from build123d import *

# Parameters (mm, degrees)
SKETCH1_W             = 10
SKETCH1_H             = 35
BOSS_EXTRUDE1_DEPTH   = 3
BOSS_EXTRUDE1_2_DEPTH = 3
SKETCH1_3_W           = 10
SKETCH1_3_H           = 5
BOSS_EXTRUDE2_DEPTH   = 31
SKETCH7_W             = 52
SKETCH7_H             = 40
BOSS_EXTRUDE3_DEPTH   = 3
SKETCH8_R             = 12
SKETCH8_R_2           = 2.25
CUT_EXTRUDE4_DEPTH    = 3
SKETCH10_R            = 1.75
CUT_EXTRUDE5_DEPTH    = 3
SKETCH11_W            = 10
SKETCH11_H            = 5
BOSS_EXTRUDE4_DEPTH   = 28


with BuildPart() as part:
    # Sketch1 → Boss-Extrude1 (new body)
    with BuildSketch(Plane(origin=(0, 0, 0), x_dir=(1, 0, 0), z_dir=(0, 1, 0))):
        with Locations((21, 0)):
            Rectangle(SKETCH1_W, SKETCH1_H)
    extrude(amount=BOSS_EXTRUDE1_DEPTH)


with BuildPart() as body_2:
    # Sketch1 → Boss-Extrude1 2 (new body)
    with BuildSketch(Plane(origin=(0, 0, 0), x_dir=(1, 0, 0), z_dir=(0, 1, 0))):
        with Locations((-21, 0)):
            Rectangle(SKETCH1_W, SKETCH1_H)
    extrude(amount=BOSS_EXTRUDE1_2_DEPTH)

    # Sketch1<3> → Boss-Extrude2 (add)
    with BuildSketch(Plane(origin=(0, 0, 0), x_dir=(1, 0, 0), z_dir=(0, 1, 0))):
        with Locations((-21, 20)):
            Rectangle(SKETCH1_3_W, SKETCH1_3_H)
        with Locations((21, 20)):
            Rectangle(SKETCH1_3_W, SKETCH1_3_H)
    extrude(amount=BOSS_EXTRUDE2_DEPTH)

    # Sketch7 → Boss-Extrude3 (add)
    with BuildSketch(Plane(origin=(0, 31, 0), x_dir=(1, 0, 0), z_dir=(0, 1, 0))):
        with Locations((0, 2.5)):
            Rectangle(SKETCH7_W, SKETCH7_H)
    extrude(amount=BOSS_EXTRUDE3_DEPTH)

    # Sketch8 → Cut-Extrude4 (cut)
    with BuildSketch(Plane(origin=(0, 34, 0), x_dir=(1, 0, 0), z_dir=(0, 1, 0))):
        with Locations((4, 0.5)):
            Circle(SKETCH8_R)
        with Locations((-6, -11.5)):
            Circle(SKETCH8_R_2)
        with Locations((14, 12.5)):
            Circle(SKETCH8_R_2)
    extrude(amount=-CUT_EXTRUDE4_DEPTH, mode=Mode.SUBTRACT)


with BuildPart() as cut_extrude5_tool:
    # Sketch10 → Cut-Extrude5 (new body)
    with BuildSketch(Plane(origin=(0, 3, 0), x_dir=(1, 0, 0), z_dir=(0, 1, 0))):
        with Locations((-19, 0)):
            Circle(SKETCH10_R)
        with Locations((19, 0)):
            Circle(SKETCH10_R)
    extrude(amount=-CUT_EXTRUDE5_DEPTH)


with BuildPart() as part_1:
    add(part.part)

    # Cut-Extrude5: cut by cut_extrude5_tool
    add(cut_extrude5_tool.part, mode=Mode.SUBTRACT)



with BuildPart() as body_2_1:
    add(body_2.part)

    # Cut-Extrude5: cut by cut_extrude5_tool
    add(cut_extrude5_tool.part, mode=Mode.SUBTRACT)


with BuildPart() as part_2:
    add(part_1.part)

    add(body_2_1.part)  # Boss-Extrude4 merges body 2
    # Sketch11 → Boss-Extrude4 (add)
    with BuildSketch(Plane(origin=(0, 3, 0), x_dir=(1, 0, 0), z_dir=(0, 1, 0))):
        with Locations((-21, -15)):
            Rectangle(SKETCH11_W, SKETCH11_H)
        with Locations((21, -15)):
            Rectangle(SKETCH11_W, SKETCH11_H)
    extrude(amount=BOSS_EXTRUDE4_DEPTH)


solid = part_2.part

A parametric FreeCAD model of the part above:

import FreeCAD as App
import Part
import Sketcher
Q = App.Units.Quantity

doc = App.newDocument("Part")
params = doc.addObject("Spreadsheet::Sheet", "Params")
for row, (alias, value) in enumerate([
    ("sketch1_width", "10 mm"),
    ("sketch1_height", "35 mm"),
    ("pad1_length", "3 mm"),
    ("sketch2_width", "10 mm"),
    ("sketch2_height", "35 mm"),
    ("pad2_length", "3 mm"),
    ("sketch3_width", "10 mm"),
    ("sketch3_height", "5 mm"),
    ("pad3_length", "31 mm"),
    ("sketch4_width", "52 mm"),
    ("sketch4_height", "40 mm"),
    ("pad4_length", "3 mm"),
    ("sketch5_diameter", "24 mm"),
    ("sketch5_diameter2", "4.5 mm"),
    ("pocket1_length", "3 mm"),
    ("sketch6_diameter", "3.5 mm"),
    ("pad5_length", "3 mm"),
    ("sketch7_width", "10 mm"),
    ("sketch7_height", "5 mm"),
    ("pad6_length", "28 mm"),
], start=1):
    params.set(f"A{row}", alias)
    params.set(f"B{row}", "=" + value)
    params.setAlias(f"B{row}", alias)

body = doc.addObject("PartDesign::Body", "Body")

# Sketch on XZ plane
sketch1 = doc.addObject("Sketcher::SketchObject", "Sketch")
body.addObject(sketch1)
sketch1.AttachmentSupport = (doc.XZ_Plane, [""])
sketch1.MapMode = "FlatFace"
sketch1.addGeometry([
    Part.LineSegment(App.Vector(16, -17.5, 0), App.Vector(16, 17.5, 0)),
    Part.LineSegment(App.Vector(16, 17.5, 0), App.Vector(26, 17.5, 0)),
    Part.LineSegment(App.Vector(26, 17.5, 0), App.Vector(26, -17.5, 0)),
    Part.LineSegment(App.Vector(26, -17.5, 0), App.Vector(16, -17.5, 0)),
], False)
sketch1.addConstraint([
    Sketcher.Constraint("Coincident", 0, 2, 1, 1),
    Sketcher.Constraint("Coincident", 1, 2, 2, 1),
    Sketcher.Constraint("Coincident", 2, 2, 3, 1),
    Sketcher.Constraint("Coincident", 3, 2, 0, 1),
    Sketcher.Constraint("Vertical", 0),
    Sketcher.Constraint("Horizontal", 1),
    Sketcher.Constraint("Vertical", 2),
    Sketcher.Constraint("Horizontal", 3),
    Sketcher.Constraint("DistanceX", 1, 1, 1, 2, Q("10 mm")),
    Sketcher.Constraint("DistanceY", 0, 1, 0, 2, Q("35 mm")),
    Sketcher.Constraint("DistanceX", -1, 1, 0, 2, Q("16 mm")),
    Sketcher.Constraint("DistanceY", -1, 1, 0, 2, Q("17.5 mm")),
])
sketch1.setExpression("Constraints[8]", "Params.sketch1_width")
sketch1.setExpression("Constraints[9]", "Params.sketch1_height")
pad1 = doc.addObject("PartDesign::Pad", "Pad")
body.addObject(pad1)
pad1.Profile = sketch1
pad1.setExpression("Length", "Params.pad1_length")
pad1.Reversed = True
body2 = doc.addObject("PartDesign::Body", "Body001")
body2.AllowCompound = True

# Sketch on XZ plane
sketch2 = doc.addObject("Sketcher::SketchObject", "Sketch001")
body2.addObject(sketch2)
sketch2.AttachmentSupport = (doc.getObject("XZ_Plane001"), [""])
sketch2.MapMode = "FlatFace"
sketch2.addGeometry([
    Part.LineSegment(App.Vector(-26, -17.5, 0), App.Vector(-26, 17.5, 0)),
    Part.LineSegment(App.Vector(-26, 17.5, 0), App.Vector(-16, 17.5, 0)),
    Part.LineSegment(App.Vector(-16, 17.5, 0), App.Vector(-16, -17.5, 0)),
    Part.LineSegment(App.Vector(-16, -17.5, 0), App.Vector(-26, -17.5, 0)),
], False)
sketch2.addConstraint([
    Sketcher.Constraint("Coincident", 0, 2, 1, 1),
    Sketcher.Constraint("Coincident", 1, 2, 2, 1),
    Sketcher.Constraint("Coincident", 2, 2, 3, 1),
    Sketcher.Constraint("Coincident", 3, 2, 0, 1),
    Sketcher.Constraint("Vertical", 0),
    Sketcher.Constraint("Horizontal", 1),
    Sketcher.Constraint("Vertical", 2),
    Sketcher.Constraint("Horizontal", 3),
    Sketcher.Constraint("DistanceX", 1, 1, 1, 2, Q("10 mm")),
    Sketcher.Constraint("DistanceY", 0, 1, 0, 2, Q("35 mm")),
    Sketcher.Constraint("DistanceX", 0, 2, -1, 1, Q("26 mm")),
    Sketcher.Constraint("DistanceY", -1, 1, 0, 2, Q("17.5 mm")),
])
sketch2.setExpression("Constraints[8]", "Params.sketch2_width")
sketch2.setExpression("Constraints[9]", "Params.sketch2_height")
pad2 = doc.addObject("PartDesign::Pad", "Pad001")
body2.addObject(pad2)
pad2.Profile = sketch2
pad2.setExpression("Length", "Params.pad2_length")
pad2.Reversed = True

# Sketch on XZ plane
sketch3 = doc.addObject("Sketcher::SketchObject", "Sketch002")
body2.addObject(sketch3)
sketch3.AttachmentSupport = (doc.getObject("XZ_Plane001"), [""])
sketch3.MapMode = "FlatFace"
sketch3.addGeometry([
    Part.LineSegment(App.Vector(-26, -22.5, 0), App.Vector(-26, -17.5, 0)),  # 0
    Part.LineSegment(App.Vector(-26, -17.5, 0), App.Vector(-16, -17.5, 0)),  # 1
    Part.LineSegment(App.Vector(-16, -17.5, 0), App.Vector(-16, -22.5, 0)),  # 2
    Part.LineSegment(App.Vector(-16, -22.5, 0), App.Vector(-26, -22.5, 0)),  # 3
    Part.LineSegment(App.Vector(16, -22.5, 0), App.Vector(16, -17.5, 0)),  # 4
    Part.LineSegment(App.Vector(16, -17.5, 0), App.Vector(26, -17.5, 0)),  # 5
    Part.LineSegment(App.Vector(26, -17.5, 0), App.Vector(26, -22.5, 0)),  # 6
    Part.LineSegment(App.Vector(26, -22.5, 0), App.Vector(16, -22.5, 0)),  # 7
], False)
sketch3.addConstraint([
    Sketcher.Constraint("Coincident", 0, 2, 1, 1),
    Sketcher.Constraint("Coincident", 1, 2, 2, 1),
    Sketcher.Constraint("Coincident", 2, 2, 3, 1),
    Sketcher.Constraint("Coincident", 3, 2, 0, 1),
    Sketcher.Constraint("Coincident", 4, 2, 5, 1),
    Sketcher.Constraint("Coincident", 5, 2, 6, 1),
    Sketcher.Constraint("Coincident", 6, 2, 7, 1),
    Sketcher.Constraint("Coincident", 7, 2, 4, 1),
    Sketcher.Constraint("Vertical", 0),
    Sketcher.Constraint("Horizontal", 1),
    Sketcher.Constraint("Vertical", 2),
    Sketcher.Constraint("Horizontal", 3),
    Sketcher.Constraint("Vertical", 4),
    Sketcher.Constraint("Horizontal", 5),
    Sketcher.Constraint("Vertical", 6),
    Sketcher.Constraint("Horizontal", 7),
    Sketcher.Constraint("Symmetric", 1, 2, 4, 2, -2),
    Sketcher.Constraint("Symmetric", 3, 2, 6, 2, -2),
    Sketcher.Constraint("DistanceX", 1, 1, 1, 2, Q("10 mm")),
    Sketcher.Constraint("DistanceY", 0, 1, 0, 2, Q("5 mm")),
    Sketcher.Constraint("DistanceX", 0, 2, -1, 1, Q("26 mm")),
    Sketcher.Constraint("DistanceY", 0, 2, -1, 1, Q("17.5 mm")),
])
sketch3.setExpression("Constraints[18]", "Params.sketch3_width")
sketch3.setExpression("Constraints[19]", "Params.sketch3_height")
pad3 = doc.addObject("PartDesign::Pad", "Pad002")
body2.addObject(pad3)
pad3.Profile = sketch3
pad3.setExpression("Length", "Params.pad3_length")
pad3.Reversed = True

# Sketch on XZ plane
sketch4 = doc.addObject("Sketcher::SketchObject", "Sketch003")
body2.addObject(sketch4)
sketch4.AttachmentSupport = (doc.getObject("XZ_Plane001"), [""])
sketch4.MapMode = "FlatFace"
sketch4.AttachmentOffset = App.Placement(App.Vector(0, 0, -31), App.Rotation())
sketch4.addGeometry([
    Part.LineSegment(App.Vector(-26, -22.5, 0), App.Vector(-26, 17.5, 0)),
    Part.LineSegment(App.Vector(-26, 17.5, 0), App.Vector(26, 17.5, 0)),
    Part.LineSegment(App.Vector(26, 17.5, 0), App.Vector(26, -22.5, 0)),
    Part.LineSegment(App.Vector(26, -22.5, 0), App.Vector(-26, -22.5, 0)),
], False)
sketch4.addConstraint([
    Sketcher.Constraint("Coincident", 0, 2, 1, 1),
    Sketcher.Constraint("Coincident", 1, 2, 2, 1),
    Sketcher.Constraint("Coincident", 2, 2, 3, 1),
    Sketcher.Constraint("Coincident", 3, 2, 0, 1),
    Sketcher.Constraint("Vertical", 0),
    Sketcher.Constraint("Horizontal", 1),
    Sketcher.Constraint("Vertical", 2),
    Sketcher.Constraint("Horizontal", 3),
    Sketcher.Constraint("DistanceX", 1, 1, 1, 2, Q("52 mm")),
    Sketcher.Constraint("DistanceY", 0, 1, 0, 2, Q("40 mm")),
    Sketcher.Constraint("DistanceX", 0, 2, -1, 1, Q("26 mm")),
    Sketcher.Constraint("DistanceY", -1, 1, 0, 2, Q("17.5 mm")),
])
sketch4.setExpression("Constraints[8]", "Params.sketch4_width")
sketch4.setExpression("Constraints[9]", "Params.sketch4_height")
pad4 = doc.addObject("PartDesign::Pad", "Pad003")
body2.addObject(pad4)
pad4.Profile = sketch4
pad4.setExpression("Length", "Params.pad4_length")
pad4.Reversed = True

# Sketch on XZ plane
sketch5 = doc.addObject("Sketcher::SketchObject", "Sketch004")
body2.addObject(sketch5)
sketch5.AttachmentSupport = (doc.getObject("XZ_Plane001"), [""])
sketch5.MapMode = "FlatFace"
sketch5.AttachmentOffset = App.Placement(App.Vector(0, 0, -34), App.Rotation())
sketch5.addGeometry([
    Part.Circle(App.Vector(4, -0.5, 0), App.Vector(0, 0, 1), 12),
    Part.Circle(App.Vector(-6, 11.5, 0), App.Vector(0, 0, 1), 2.25),
    Part.Circle(App.Vector(14, -12.5, 0), App.Vector(0, 0, 1), 2.25),
], False)
sketch5.addConstraint([
    Sketcher.Constraint("Equal", 1, 2),
    Sketcher.Constraint("Diameter", 0, Q("24 mm")),
    Sketcher.Constraint("Diameter", 1, Q("4.5 mm")),
    Sketcher.Constraint("DistanceX", -1, 1, 0, 3, Q("4 mm")),
    Sketcher.Constraint("DistanceX", 1, 3, -1, 1, Q("6 mm")),
    Sketcher.Constraint("DistanceX", -1, 1, 2, 3, Q("14 mm")),
    Sketcher.Constraint("DistanceY", 0, 3, 1, 3, Q("12 mm")),
    Sketcher.Constraint("DistanceY", 2, 3, 0, 3, Q("12 mm")),
    Sketcher.Constraint("DistanceY", 0, 3, -1, 1, Q("0.5 mm")),
])
sketch5.setExpression("Constraints[1]", "Params.sketch5_diameter")
sketch5.setExpression("Constraints[2]", "Params.sketch5_diameter2")
pocket1 = doc.addObject("PartDesign::Pocket", "Pocket")
body2.addObject(pocket1)
pocket1.Profile = sketch5
pocket1.setExpression("Length", "Params.pocket1_length")
pocket1.Reversed = True
body3 = doc.addObject("PartDesign::Body", "Body002")
body3.AllowCompound = True

# Sketch on XZ plane
sketch6 = doc.addObject("Sketcher::SketchObject", "Sketch005")
body3.addObject(sketch6)
sketch6.AttachmentSupport = (doc.getObject("XZ_Plane002"), [""])
sketch6.MapMode = "FlatFace"
sketch6.AttachmentOffset = App.Placement(App.Vector(0, 0, -3), App.Rotation())
sketch6.addGeometry([
    Part.Circle(App.Vector(-19, 0, 0), App.Vector(0, 0, 1), 1.75),
    Part.Circle(App.Vector(19, 0, 0), App.Vector(0, 0, 1), 1.75),
], False)
sketch6.addConstraint([
    Sketcher.Constraint("Equal", 0, 1),
    Sketcher.Constraint("Symmetric", 0, 3, 1, 3, -1, 1),
    Sketcher.Constraint("PointOnObject", 0, 3, -1),
    Sketcher.Constraint("Diameter", 0, Q("3.5 mm")),
    Sketcher.Constraint("DistanceX", 0, 3, -1, 1, Q("19 mm")),
])
sketch6.setExpression("Constraints[3]", "Params.sketch6_diameter")
pad5 = doc.addObject("PartDesign::Pad", "Pad004")
body3.addObject(pad5)
pad5.Profile = sketch6
pad5.setExpression("Length", "Params.pad5_length")
doc.recompute()

body4 = doc.addObject("PartDesign::Body", "Body003")
body4.BaseFeature = body3
boolean = doc.addObject("PartDesign::Boolean", "Boolean")
body.addObject(boolean)
boolean.Type = "Cut"
boolean.addObjects([body4])
doc.recompute()

boolean2 = doc.addObject("PartDesign::Boolean", "Boolean001")
body2.addObject(boolean2)
boolean2.Type = "Cut"
boolean2.addObjects([body3])
doc.recompute()

boolean3 = doc.addObject("PartDesign::Boolean", "Boolean002")
body.addObject(boolean3)
boolean3.Type = "Fuse"
boolean3.addObjects([body2])

# Sketch on XZ plane
sketch7 = doc.addObject("Sketcher::SketchObject", "Sketch006")
body.addObject(sketch7)
sketch7.AttachmentSupport = (doc.XZ_Plane, [""])
sketch7.MapMode = "FlatFace"
sketch7.AttachmentOffset = App.Placement(App.Vector(0, 0, -3), App.Rotation())
sketch7.addGeometry([
    Part.LineSegment(App.Vector(-26, 12.5, 0), App.Vector(-26, 17.5, 0)),  # 0
    Part.LineSegment(App.Vector(-26, 17.5, 0), App.Vector(-16, 17.5, 0)),  # 1
    Part.LineSegment(App.Vector(-16, 17.5, 0), App.Vector(-16, 12.5, 0)),  # 2
    Part.LineSegment(App.Vector(-16, 12.5, 0), App.Vector(-26, 12.5, 0)),  # 3
    Part.LineSegment(App.Vector(16, 12.5, 0), App.Vector(16, 17.5, 0)),  # 4
    Part.LineSegment(App.Vector(16, 17.5, 0), App.Vector(26, 17.5, 0)),  # 5
    Part.LineSegment(App.Vector(26, 17.5, 0), App.Vector(26, 12.5, 0)),  # 6
    Part.LineSegment(App.Vector(26, 12.5, 0), App.Vector(16, 12.5, 0)),  # 7
], False)
sketch7.addConstraint([
    Sketcher.Constraint("Coincident", 0, 2, 1, 1),
    Sketcher.Constraint("Coincident", 1, 2, 2, 1),
    Sketcher.Constraint("Coincident", 2, 2, 3, 1),
    Sketcher.Constraint("Coincident", 3, 2, 0, 1),
    Sketcher.Constraint("Coincident", 4, 2, 5, 1),
    Sketcher.Constraint("Coincident", 5, 2, 6, 1),
    Sketcher.Constraint("Coincident", 6, 2, 7, 1),
    Sketcher.Constraint("Coincident", 7, 2, 4, 1),
    Sketcher.Constraint("Vertical", 0),
    Sketcher.Constraint("Horizontal", 1),
    Sketcher.Constraint("Vertical", 2),
    Sketcher.Constraint("Horizontal", 3),
    Sketcher.Constraint("Vertical", 4),
    Sketcher.Constraint("Horizontal", 5),
    Sketcher.Constraint("Vertical", 6),
    Sketcher.Constraint("Horizontal", 7),
    Sketcher.Constraint("Symmetric", 1, 2, 4, 2, -2),
    Sketcher.Constraint("Symmetric", 3, 2, 6, 2, -2),
    Sketcher.Constraint("DistanceX", 1, 1, 1, 2, Q("10 mm")),
    Sketcher.Constraint("DistanceY", 0, 1, 0, 2, Q("5 mm")),
    Sketcher.Constraint("DistanceX", 0, 2, -1, 1, Q("26 mm")),
    Sketcher.Constraint("DistanceY", -1, 1, 0, 2, Q("17.5 mm")),
])
sketch7.setExpression("Constraints[18]", "Params.sketch7_width")
sketch7.setExpression("Constraints[19]", "Params.sketch7_height")
pad6 = doc.addObject("PartDesign::Pad", "Pad005")
body.addObject(pad6)
pad6.Profile = sketch7
pad6.setExpression("Length", "Params.pad6_length")
pad6.Reversed = True

doc.recompute()
